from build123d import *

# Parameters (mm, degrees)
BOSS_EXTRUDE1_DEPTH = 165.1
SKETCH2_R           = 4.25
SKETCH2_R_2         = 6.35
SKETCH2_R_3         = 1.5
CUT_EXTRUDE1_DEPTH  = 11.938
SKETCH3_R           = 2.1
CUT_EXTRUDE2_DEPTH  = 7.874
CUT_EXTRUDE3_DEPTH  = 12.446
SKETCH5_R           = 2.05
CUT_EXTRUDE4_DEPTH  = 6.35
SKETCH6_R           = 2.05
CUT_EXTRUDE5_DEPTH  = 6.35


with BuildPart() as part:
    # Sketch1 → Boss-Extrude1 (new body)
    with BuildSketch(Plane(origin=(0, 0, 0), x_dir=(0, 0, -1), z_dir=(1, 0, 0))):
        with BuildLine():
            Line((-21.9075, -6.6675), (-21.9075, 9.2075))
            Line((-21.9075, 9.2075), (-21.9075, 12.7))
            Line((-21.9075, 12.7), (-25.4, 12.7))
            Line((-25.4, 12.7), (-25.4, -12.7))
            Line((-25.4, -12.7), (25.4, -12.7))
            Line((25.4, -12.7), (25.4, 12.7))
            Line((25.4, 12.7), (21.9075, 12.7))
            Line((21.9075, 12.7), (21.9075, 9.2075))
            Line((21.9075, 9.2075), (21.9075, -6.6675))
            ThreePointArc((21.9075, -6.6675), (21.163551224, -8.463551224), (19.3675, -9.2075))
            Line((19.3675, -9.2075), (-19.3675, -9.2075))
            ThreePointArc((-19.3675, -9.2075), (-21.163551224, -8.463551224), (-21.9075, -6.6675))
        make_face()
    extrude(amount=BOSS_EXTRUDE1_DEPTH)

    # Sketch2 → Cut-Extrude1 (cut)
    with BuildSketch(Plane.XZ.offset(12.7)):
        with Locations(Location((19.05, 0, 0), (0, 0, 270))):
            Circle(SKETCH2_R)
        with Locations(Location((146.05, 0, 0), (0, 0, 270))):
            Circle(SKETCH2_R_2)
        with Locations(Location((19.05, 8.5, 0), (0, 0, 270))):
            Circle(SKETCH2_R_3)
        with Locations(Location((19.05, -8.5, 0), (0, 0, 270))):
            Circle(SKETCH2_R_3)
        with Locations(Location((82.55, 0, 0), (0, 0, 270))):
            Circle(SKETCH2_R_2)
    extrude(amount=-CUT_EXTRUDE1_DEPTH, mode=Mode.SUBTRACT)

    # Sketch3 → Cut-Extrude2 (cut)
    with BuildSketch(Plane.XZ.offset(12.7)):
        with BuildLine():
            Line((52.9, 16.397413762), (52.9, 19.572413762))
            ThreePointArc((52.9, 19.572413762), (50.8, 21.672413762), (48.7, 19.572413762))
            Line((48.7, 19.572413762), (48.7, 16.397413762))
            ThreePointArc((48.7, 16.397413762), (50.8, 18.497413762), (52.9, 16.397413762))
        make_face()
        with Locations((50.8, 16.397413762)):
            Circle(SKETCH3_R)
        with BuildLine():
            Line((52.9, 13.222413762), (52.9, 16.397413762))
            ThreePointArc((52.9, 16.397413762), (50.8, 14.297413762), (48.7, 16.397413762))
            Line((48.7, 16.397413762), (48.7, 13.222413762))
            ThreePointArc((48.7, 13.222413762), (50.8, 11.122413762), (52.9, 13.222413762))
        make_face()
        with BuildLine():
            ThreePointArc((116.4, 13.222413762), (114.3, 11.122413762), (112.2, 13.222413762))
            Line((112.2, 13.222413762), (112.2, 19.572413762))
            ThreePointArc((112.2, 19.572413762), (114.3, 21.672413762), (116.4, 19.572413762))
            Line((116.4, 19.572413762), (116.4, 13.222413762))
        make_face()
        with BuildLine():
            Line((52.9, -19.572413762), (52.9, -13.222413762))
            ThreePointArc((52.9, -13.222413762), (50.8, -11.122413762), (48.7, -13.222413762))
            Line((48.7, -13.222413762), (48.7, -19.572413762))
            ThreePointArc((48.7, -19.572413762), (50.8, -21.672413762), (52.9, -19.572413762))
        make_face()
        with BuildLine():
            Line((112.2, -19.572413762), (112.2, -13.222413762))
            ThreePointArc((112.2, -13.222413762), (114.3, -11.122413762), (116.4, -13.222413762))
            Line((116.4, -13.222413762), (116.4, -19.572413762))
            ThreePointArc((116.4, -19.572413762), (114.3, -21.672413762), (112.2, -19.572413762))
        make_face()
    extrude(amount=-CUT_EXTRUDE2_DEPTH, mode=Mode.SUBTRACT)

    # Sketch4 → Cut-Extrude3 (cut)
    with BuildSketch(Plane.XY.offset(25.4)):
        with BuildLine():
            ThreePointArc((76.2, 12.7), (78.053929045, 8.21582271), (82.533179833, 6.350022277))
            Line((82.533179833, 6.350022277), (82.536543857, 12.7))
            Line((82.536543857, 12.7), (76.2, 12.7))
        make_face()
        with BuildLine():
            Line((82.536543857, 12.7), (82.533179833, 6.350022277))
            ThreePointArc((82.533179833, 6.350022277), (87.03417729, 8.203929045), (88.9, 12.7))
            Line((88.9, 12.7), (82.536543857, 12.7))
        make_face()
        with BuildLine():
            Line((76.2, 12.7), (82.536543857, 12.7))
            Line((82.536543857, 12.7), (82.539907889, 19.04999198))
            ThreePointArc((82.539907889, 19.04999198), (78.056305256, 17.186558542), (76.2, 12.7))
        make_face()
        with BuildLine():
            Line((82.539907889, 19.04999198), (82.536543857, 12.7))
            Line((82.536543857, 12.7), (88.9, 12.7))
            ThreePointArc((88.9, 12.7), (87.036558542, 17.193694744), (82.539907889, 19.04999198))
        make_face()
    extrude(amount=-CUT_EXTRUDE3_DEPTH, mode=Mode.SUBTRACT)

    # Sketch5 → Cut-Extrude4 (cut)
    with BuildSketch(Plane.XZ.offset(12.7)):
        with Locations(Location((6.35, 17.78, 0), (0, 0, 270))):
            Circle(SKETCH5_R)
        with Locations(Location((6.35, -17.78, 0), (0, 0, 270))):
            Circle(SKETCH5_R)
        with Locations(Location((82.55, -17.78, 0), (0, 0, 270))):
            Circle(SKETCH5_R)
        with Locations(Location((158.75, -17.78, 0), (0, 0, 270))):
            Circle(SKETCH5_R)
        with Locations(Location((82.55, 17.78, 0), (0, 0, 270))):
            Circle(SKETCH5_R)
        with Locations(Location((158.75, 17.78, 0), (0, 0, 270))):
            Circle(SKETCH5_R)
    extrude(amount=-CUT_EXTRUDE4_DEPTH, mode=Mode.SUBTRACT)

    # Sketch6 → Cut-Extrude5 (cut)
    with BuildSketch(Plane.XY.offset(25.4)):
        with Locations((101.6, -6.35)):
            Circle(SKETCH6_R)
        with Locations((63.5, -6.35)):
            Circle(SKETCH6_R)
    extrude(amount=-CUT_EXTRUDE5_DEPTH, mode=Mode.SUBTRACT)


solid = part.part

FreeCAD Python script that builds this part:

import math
import FreeCAD as App
import Part
import Sketcher
Q = App.Units.Quantity

doc = App.newDocument("Part")
body = doc.addObject("PartDesign::Body", "Body")

sketch1 = doc.addObject("Sketcher::SketchObject", "Sketch")
body.addObject(sketch1)
sketch1.AttachmentSupport = (doc.YZ_Plane, [""])
sketch1.MapMode = "FlatFace"
sketch1.addGeometry(Part.LineSegment(App.Vector(-6.7, 21.9, 0), App.Vector(12.7, 21.9, 0)), False)
sketch1.addGeometry(Part.LineSegment(App.Vector(12.7, 21.9, 0), App.Vector(12.7, 25.4, 0)), False)
sketch1.addGeometry(Part.LineSegment(App.Vector(12.7, 25.4, 0), App.Vector(-12.7, 25.4, 0)), False)
sketch1.addGeometry(Part.LineSegment(App.Vector(-12.7, 25.4, 0), App.Vector(-12.7, -25.4, 0)), False)
sketch1.addGeometry(Part.LineSegment(App.Vector(-12.7, -25.4, 0), App.Vector(12.7, -25.4, 0)), False)
sketch1.addGeometry(Part.LineSegment(App.Vector(12.7, -25.4, 0), App.Vector(12.7, -21.9, 0)), False)
sketch1.addGeometry(Part.LineSegment(App.Vector(12.7, -21.9, 0), App.Vector(-6.7, -21.9, 0)), False)
sketch1.addGeometry(Part.ArcOfCircle(Part.Circle(App.Vector(-6.7, -19.4, 0), App.Vector(0, 0, 1), 2.5), math.radians(-180), math.radians(-90)), False)
sketch1.addGeometry(Part.LineSegment(App.Vector(-9.2, -19.4, 0), App.Vector(-9.2, 19.4, 0)), False)
sketch1.addGeometry(Part.ArcOfCircle(Part.Circle(App.Vector(-6.7, 19.4, 0), App.Vector(0, 0, 1), 2.5), math.radians(90), math.radians(180)), False)
sketch1.addConstraint(Sketcher.Constraint("Coincident", 0, 2, 1, 1))
sketch1.addConstraint(Sketcher.Constraint("Coincident", 1, 2, 2, 1))
sketch1.addConstraint(Sketcher.Constraint("Coincident", 2, 2, 3, 1))
sketch1.addConstraint(Sketcher.Constraint("Coincident", 3, 2, 4, 1))
sketch1.addConstraint(Sketcher.Constraint("Coincident", 4, 2, 5, 1))
sketch1.addConstraint(Sketcher.Constraint("Coincident", 5, 2, 6, 1))
sketch1.addConstraint(Sketcher.Constraint("Tangent", 6, 2, 7, 2))
sketch1.addConstraint(Sketcher.Constraint("Tangent", 7, 1, 8, 1))
sketch1.addConstraint(Sketcher.Constraint("Tangent", 8, 2, 9, 2))
sketch1.addConstraint(Sketcher.Constraint("Tangent", 9, 1, 0, 1))
sketch1.addConstraint(Sketcher.Constraint("Horizontal", 0))
sketch1.addConstraint(Sketcher.Constraint("Vertical", 1))
sketch1.addConstraint(Sketcher.Constraint("Horizontal", 2))
sketch1.addConstraint(Sketcher.Constraint("Vertical", 3))
sketch1.addConstraint(Sketcher.Constraint("Horizontal", 4))
sketch1.addConstraint(Sketcher.Constraint("Vertical", 5))
sketch1.addConstraint(Sketcher.Constraint("Horizontal", 6))
sketch1.addConstraint(Sketcher.Constraint("Vertical", 8))
sketch1.addConstraint(Sketcher.Constraint("Equal", 7, 9))
sketch1.addConstraint(Sketcher.Constraint("Symmetric", 1, 2, 3, 2, -1, 1))
sketch1.addConstraint(Sketcher.Constraint("Symmetric", 0, 2, 5, 2, -1))
sketch1.addConstraint(Sketcher.Constraint("Radius", 7, Q("0.1 in")))
sketch1.addConstraint(Sketcher.Constraint("DistanceX", 2, 2, 2, 1, Q("1 in")))
sketch1.addConstraint(Sketcher.Constraint("DistanceY", 3, 2, 3, 1, Q("2 in")))
sketch1.addConstraint(Sketcher.Constraint("DistanceY", 8, 1, 8, 2, Q("1.525 in")))
sketch1.addConstraint(Sketcher.Constraint("DistanceX", 0, 1, 0, 2, Q("0.7625 in")))
pad1 = doc.addObject("PartDesign::Pad", "Pad")
body.addObject(pad1)
pad1.Profile = sketch1
pad1.Length = Q("6.5 in")

sketch2 = doc.addObject("Sketcher::SketchObject", "Sketch001")
body.addObject(sketch2)
sketch2.AttachmentSupport = (doc.XZ_Plane, [""])
sketch2.MapMode = "FlatFace"
sketch2.AttachmentOffset = App.Placement(App.Vector(0, 0, 0.5 * 25.4), App.Rotation())
sketch2.addGeometry(Part.Circle(App.Vector(19.1, 0, 0), App.Vector(0, 0, 1), 4.2), False)
sketch2.addGeometry(Part.Circle(App.Vector(146.1, 0, 0), App.Vector(0, 0, 1), 6.3), False)
sketch2.addGeometry(Part.Circle(App.Vector(19.1, 8.5, 0), App.Vector(0, 0, 1), 1.5), False)
sketch2.addGeometry(Part.Circle(App.Vector(19.1, -8.5, 0), App.Vector(0, 0, 1), 1.5), False)
sketch2.addGeometry(Part.Circle(App.Vector(82.5, 0, 0), App.Vector(0, 0, 1), 6.3), False)
sketch2.addConstraint(Sketcher.Constraint("Equal", 2, 3))
sketch2.addConstraint(Sketcher.Constraint("Equal", 1, 4))
sketch2.addConstraint(Sketcher.Constraint("Symmetric", 2, 3, 3, 3, -1))
sketch2.addConstraint(Sketcher.Constraint("PointOnObject", 0, 3, -1))
sketch2.addConstraint(Sketcher.Constraint("PointOnObject", 1, 3, -1))
sketch2.addConstraint(Sketcher.Constraint("PointOnObject", 4, 3, -1))
sketch2.addConstraint(Sketcher.Constraint("Vertical", 0, 3, 2, 3))
sketch2.addConstraint(Sketcher.Constraint("Diameter", 1, Q("0.5 in")))
sketch2.addConstraint(Sketcher.Constraint("DistanceX", 0, 3, 1, 3, Q("5 in")))
sketch2.addConstraint(Sketcher.Constraint("DistanceX", 0, 3, 4, 3, Q("2.5 in")))
sketch2.addConstraint(Sketcher.Constraint("Diameter", 0, 8.5))
sketch2.addConstraint(Sketcher.Constraint("Diameter", 2, 3.0))
sketch2.addConstraint(Sketcher.Constraint("DistanceX", -1, 1, 0, 3, Q("0.75 in")))
sketch2.addConstraint(Sketcher.Constraint("DistanceY", -1, 1, 2, 3, 8.5))
pocket1 = doc.addObject("PartDesign::Pocket", "Pocket")
body.addObject(pocket1)
pocket1.Profile = sketch2
pocket1.Length = Q("0.47 in")

sketch3 = doc.addObject("Sketcher::SketchObject", "Sketch002")
body.addObject(sketch3)
sketch3.AttachmentSupport = (doc.XZ_Plane, [""])
sketch3.MapMode = "FlatFace"
sketch3.AttachmentOffset = App.Placement(App.Vector(0, 0, 0.5 * 25.4), App.Rotation())
sketch3.addGeometry(Part.ArcOfCircle(Part.Circle(App.Vector(50.8, 19.6, 0), App.Vector(0, 0, 1), 2.1), math.radians(0), math.radians(180)), False)
sketch3.addGeometry(Part.LineSegment(App.Vector(48.7, 19.6, 0), App.Vector(48.7, 13.2, 0)), False)
sketch3.addGeometry(Part.ArcOfCircle(Part.Circle(App.Vector(50.8, 13.2, 0), App.Vector(0, 0, 1), 2.1), math.radians(180), math.radians(360)), False)
sketch3.addGeometry(Part.LineSegment(App.Vector(52.9, 13.2, 0), App.Vector(52.9, 19.6, 0)), False)
sketch3.addGeometry(Part.ArcOfCircle(Part.Circle(App.Vector(114.3, 13.2, 0), App.Vector(0, 0, 1), 2.1), math.radians(180), math.radians(360)), False)
sketch3.addGeometry(Part.LineSegment(App.Vector(116.4, 13.2, 0), App.Vector(116.4, 19.6, 0)), False)
sketch3.addGeometry(Part.ArcOfCircle(Part.Circle(App.Vector(114.3, 19.6, 0), App.Vector(0, 0, 1), 2.1), math.radians(0), math.radians(180)), False)
sketch3.addGeometry(Part.LineSegment(App.Vector(112.2, 19.6, 0), App.Vector(112.2, 13.2, 0)), False)
sketch3.addGeometry(Part.LineSegment(App.Vector(52.9, -19.6, 0), App.Vector(52.9, -13.2, 0)), False)
sketch3.addGeometry(Part.ArcOfCircle(Part.Circle(App.Vector(50.8, -13.2, 0), App.Vector(0, 0, 1), 2.1), math.radians(0), math.radians(180)), False)
sketch3.addGeometry(Part.LineSegment(App.Vector(48.7, -13.2, 0), App.Vector(48.7, -19.6, 0)), False)
sketch3.addGeometry(Part.ArcOfCircle(Part.Circle(App.Vector(50.8, -19.6, 0), App.Vector(0, 0, 1), 2.1), math.radians(180), math.radians(360)), False)
sketch3.addGeometry(Part.LineSegment(App.Vector(112.2, -13.2, 0), App.Vector(112.2, -19.6, 0)), False)
sketch3.addGeometry(Part.ArcOfCircle(Part.Circle(App.Vector(114.3, -19.6, 0), App.Vector(0, 0, 1), 2.1), math.radians(180), math.radians(360)), False)
sketch3.addGeometry(Part.LineSegment(App.Vector(116.4, -19.6, 0), App.Vector(116.4, -13.2, 0)), False)
sketch3.addGeometry(Part.ArcOfCircle(Part.Circle(App.Vector(114.3, -13.2, 0), App.Vector(0, 0, 1), 2.1), math.radians(0), math.radians(180)), False)
sketch3.addConstraint(Sketcher.Constraint("Tangent", 0, 2, 1, 1))
sketch3.addConstraint(Sketcher.Constraint("Tangent", 1, 2, 2, 1))
sketch3.addConstraint(Sketcher.Constraint("Tangent", 2, 2, 3, 1))
sketch3.addConstraint(Sketcher.Constraint("Tangent", 3, 2, 0, 1))
sketch3.addConstraint(Sketcher.Constraint("Tangent", 4, 2, 5, 1))
sketch3.addConstraint(Sketcher.Constraint("Tangent", 5, 2, 6, 1))
sketch3.addConstraint(Sketcher.Constraint("Tangent", 6, 2, 7, 1))
sketch3.addConstraint(Sketcher.Constraint("Tangent", 7, 2, 4, 1))
sketch3.addConstraint(Sketcher.Constraint("Tangent", 8, 2, 9, 1))
sketch3.addConstraint(Sketcher.Constraint("Tangent", 9, 2, 10, 1))
sketch3.addConstraint(Sketcher.Constraint("Tangent", 10, 2, 11, 1))
sketch3.addConstraint(Sketcher.Constraint("Tangent", 11, 2, 8, 1))
sketch3.addConstraint(Sketcher.Constraint("Tangent", 12, 2, 13, 1))
sketch3.addConstraint(Sketcher.Constraint("Tangent", 13, 2, 14, 1))
sketch3.addConstraint(Sketcher.Constraint("Tangent", 14, 2, 15, 1))
sketch3.addConstraint(Sketcher.Constraint("Tangent", 15, 2, 12, 1))
sketch3.addConstraint(Sketcher.Constraint("Vertical", 1))
sketch3.addConstraint(Sketcher.Constraint("Vertical", 3))
sketch3.addConstraint(Sketcher.Constraint("Vertical", 5))
sketch3.addConstraint(Sketcher.Constraint("Vertical", 7))
sketch3.addConstraint(Sketcher.Constraint("Vertical", 8))
sketch3.addConstraint(Sketcher.Constraint("Vertical", 10))
sketch3.addConstraint(Sketcher.Constraint("Vertical", 12))
sketch3.addConstraint(Sketcher.Constraint("Vertical", 14))
sketch3.addConstraint(Sketcher.Constraint("Equal", 2, 4))
sketch3.addConstraint(Sketcher.Constraint("Equal", 6, 9))
sketch3.addConstraint(Sketcher.Constraint("Equal", 11, 13))
sketch3.addConstraint(Sketcher.Constraint("Symmetric", 2, 3, 9, 3, -1))
sketch3.addConstraint(Sketcher.Constraint("Symmetric", 6, 3, 13, 3, -1))
sketch3.addConstraint(Sketcher.Constraint("Horizontal", 2, 3, 4, 3))
sketch3.addConstraint(Sketcher.Constraint("Horizontal", 0, 3, 6, 3))
sketch3.addConstraint(Sketcher.Constraint("Horizontal", 11, 3, 13, 3))
sketch3.addConstraint(Sketcher.Constraint("Horizontal", 9, 3, 15, 3))
sketch3.addConstraint(Sketcher.Constraint("DistanceX", -1, 1, 0, 3, Q("2 in")))
sketch3.addConstraint(Sketcher.Constraint("DistanceY", 1, 2, 1, 1, Q("0.25 in")))
sketch3.addConstraint(Sketcher.Constraint("DistanceX", -1, 1, 4, 3, Q("4.5 in")))
sketch3.addConstraint(Sketcher.Constraint("Radius", 0, 2.1))
sketch3.addConstraint(Sketcher.Constraint("DistanceY", -1, 1, 0, 3, 19.572414))
pocket2 = doc.addObject("PartDesign::Pocket", "Pocket001")
body.addObject(pocket2)
pocket2.Profile = sketch3
pocket2.Length = Q("0.31 in")

sketch4 = doc.addObject("Sketcher::SketchObject", "Sketch003")
body.addObject(sketch4)
sketch4.AttachmentSupport = (doc.XY_Plane, [""])
sketch4.MapMode = "FlatFace"
sketch4.AttachmentOffset = App.Placement(App.Vector(0, 0, 1 * 25.4), App.Rotation())
sketch4.addGeometry(Part.ArcOfCircle(Part.Circle(App.Vector(82.55, 12.7, 0), App.Vector(0, 0, 1), 6.35), math.radians(-90.151768), math.radians(0)), False)
sketch4.addGeometry(Part.ArcOfCircle(Part.Circle(App.Vector(82.55, 12.7, 0), App.Vector(0, 0, 1), 6.35), math.radians(0), math.radians(90.091061)), False)
sketch4.addGeometry(Part.ArcOfCircle(Part.Circle(App.Vector(82.55, 12.7, 0), App.Vector(0, 0, 1), 6.35), math.radians(90.091061), math.radians(180)), False)
sketch4.addGeometry(Part.ArcOfCircle(Part.Circle(App.Vector(82.55, 12.7, 0), App.Vector(0, 0, 1), 6.35), math.radians(180), math.radians(269.848232)), False)
sketch4.addConstraint(Sketcher.Constraint("Tangent", 0, 2, 1, 1))
sketch4.addConstraint(Sketcher.Constraint("Tangent", 1, 2, 2, 1))
sketch4.addConstraint(Sketcher.Constraint("Tangent", 2, 2, 3, 1))
sketch4.addConstraint(Sketcher.Constraint("Tangent", 3, 2, 0, 1))
sketch4.addConstraint(Sketcher.Constraint("Equal", 0, 1))
sketch4.addConstraint(Sketcher.Constraint("Horizontal", 3, 3, 0, 2))
sketch4.addConstraint(Sketcher.Constraint("Horizontal", 0, 2, 2, 2))
sketch4.addConstraint(Sketcher.Constraint("Radius", 0, Q("0.25 in")))
sketch4.addConstraint(Sketcher.Constraint("DistanceX", -1, 1, 2, 2, Q("3 in")))
sketch4.addConstraint(Sketcher.Constraint("DistanceY", -1, 1, 0, 3, Q("0.5 in")))
sketch4.addConstraint(Sketcher.Constraint("DistanceY", -1, 1, 1, 2, 19.049992))
sketch4.addConstraint(Sketcher.Constraint("DistanceX", -1, 1, 3, 2, 82.53318))
pocket3 = doc.addObject("PartDesign::Pocket", "Pocket002")
body.addObject(pocket3)
pocket3.Profile = sketch4
pocket3.Length = Q("0.49 in")

sketch5 = doc.addObject("Sketcher::SketchObject", "Sketch004")
body.addObject(sketch5)
sketch5.AttachmentSupport = (doc.XZ_Plane, [""])
sketch5.MapMode = "FlatFace"
sketch5.AttachmentOffset = App.Placement(App.Vector(0, 0, 0.5 * 25.4), App.Rotation())
sketch5.addGeometry(Part.Circle(App.Vector(6.3, 17.8, 0), App.Vector(0, 0, 1), 2), False)
sketch5.addGeometry(Part.Circle(App.Vector(6.3, -17.8, 0), App.Vector(0, 0, 1), 2), False)
sketch5.addGeometry(Part.Circle(App.Vector(82.5, -17.8, 0), App.Vector(0, 0, 1), 2), False)
sketch5.addGeometry(Part.Circle(App.Vector(158.8, -17.8, 0), App.Vector(0, 0, 1), 2), False)
sketch5.addGeometry(Part.Circle(App.Vector(82.5, 17.8, 0), App.Vector(0, 0, 1), 2), False)
sketch5.addGeometry(Part.Circle(App.Vector(158.8, 17.8, 0), App.Vector(0, 0, 1), 2), False)
sketch5.addConstraint(Sketcher.Constraint("Equal", 0, 1))
sketch5.addConstraint(Sketcher.Constraint("Equal", 1, 2))
sketch5.addConstraint(Sketcher.Constraint("Equal", 2, 3))
sketch5.addConstraint(Sketcher.Constraint("Equal", 3, 4))
sketch5.addConstraint(Sketcher.Constraint("Equal", 4, 5))
sketch5.addConstraint(Sketcher.Constraint("Symmetric", 0, 3, 1, 3, -1))
sketch5.addConstraint(Sketcher.Constraint("Symmetric", 2, 3, 4, 3, -1))
sketch5.addConstraint(Sketcher.Constraint("Symmetric", 3, 3, 5, 3, -1))
sketch5.addConstraint(Sketcher.Constraint("Horizontal", 1, 3, 2, 3))
sketch5.addConstraint(Sketcher.Constraint("Horizontal", 2, 3, 3, 3))
sketch5.addConstraint(Sketcher.Constraint("DistanceX", 1, 3, 2, 3, Q("3 in")))
sketch5.addConstraint(Sketcher.Constraint("DistanceX", 2, 3, 3, 3, Q("3 in")))
sketch5.addConstraint(Sketcher.Constraint("DistanceY", -1, 1, 0, 3, Q("0.7 in")))
sketch5.addConstraint(Sketcher.Constraint("Diameter", 0, 4.1))
sketch5.addConstraint(Sketcher.Constraint("DistanceX", -1, 1, 0, 3, Q("0.25 in")))
pocket4 = doc.addObject("PartDesign::Pocket", "Pocket003")
body.addObject(pocket4)
pocket4.Profile = sketch5
pocket4.Length = Q("0.25 in")

sketch6 = doc.addObject("Sketcher::SketchObject", "Sketch005")
body.addObject(sketch6)
sketch6.AttachmentSupport = (doc.XY_Plane, [""])
sketch6.MapMode = "FlatFace"
sketch6.AttachmentOffset = App.Placement(App.Vector(0, 0, 1 * 25.4), App.Rotation())
sketch6.addGeometry(Part.Circle(App.Vector(101.6, -6.3, 0), App.Vector(0, 0, 1), 2), False)
sketch6.addGeometry(Part.Circle(App.Vector(63.5, -6.3, 0), App.Vector(0, 0, 1), 2), False)
sketch6.addConstraint(Sketcher.Constraint("Equal", 0, 1))
sketch6.addConstraint(Sketcher.Constraint("Horizontal", 0, 3, 1, 3))
sketch6.addConstraint(Sketcher.Constraint("DistanceX", -1, 1, 0, 3, Q("4 in")))
sketch6.addConstraint(Sketcher.Constraint("DistanceX", -1, 1, 1, 3, Q("2.5 in")))
sketch6.addConstraint(Sketcher.Constraint("Diameter", 0, 4.1))
sketch6.addConstraint(Sketcher.Constraint("DistanceY", 0, 3, -1, 1, Q("0.25 in")))
pocket5 = doc.addObject("PartDesign::Pocket", "Pocket004")
body.addObject(pocket5)
pocket5.Profile = sketch6
pocket5.Length = Q("0.25 in")

doc.recompute()
